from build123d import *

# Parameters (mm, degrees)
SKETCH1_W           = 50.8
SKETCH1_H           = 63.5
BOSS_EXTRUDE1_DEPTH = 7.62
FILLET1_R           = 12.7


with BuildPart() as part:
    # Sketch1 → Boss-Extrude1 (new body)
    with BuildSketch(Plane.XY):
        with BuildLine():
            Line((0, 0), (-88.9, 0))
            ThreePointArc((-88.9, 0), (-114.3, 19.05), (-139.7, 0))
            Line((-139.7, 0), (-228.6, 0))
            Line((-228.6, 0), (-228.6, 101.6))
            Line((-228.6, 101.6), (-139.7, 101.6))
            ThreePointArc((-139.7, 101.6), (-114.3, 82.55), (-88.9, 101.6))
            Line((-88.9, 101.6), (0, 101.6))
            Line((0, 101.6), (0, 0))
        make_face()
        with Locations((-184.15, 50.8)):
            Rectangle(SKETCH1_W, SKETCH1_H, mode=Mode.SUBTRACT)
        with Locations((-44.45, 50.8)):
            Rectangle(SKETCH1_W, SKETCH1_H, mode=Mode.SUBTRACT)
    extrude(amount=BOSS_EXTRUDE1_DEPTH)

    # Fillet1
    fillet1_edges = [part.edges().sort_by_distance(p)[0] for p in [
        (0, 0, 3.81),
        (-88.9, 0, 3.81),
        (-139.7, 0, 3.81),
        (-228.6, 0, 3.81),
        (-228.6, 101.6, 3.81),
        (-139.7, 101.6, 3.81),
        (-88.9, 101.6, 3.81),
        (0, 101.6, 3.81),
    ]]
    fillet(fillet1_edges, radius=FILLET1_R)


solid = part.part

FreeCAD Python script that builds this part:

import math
import FreeCAD as App
import Part
import Sketcher
from FreeCAD import Vector
Q = App.Units.Quantity


def edges_at(feature, points):
    """Names of the edges that pass closest to the given points."""
    edges = feature.Shape.Edges
    near = lambda p: min(range(len(edges)), key=lambda i: edges[i].distToShape(Part.Vertex(*p))[0])
    return sorted({f"Edge{near(p) + 1}" for p in points})

doc = App.newDocument("Part")
body = doc.addObject("PartDesign::Body", "Body")

# Sketch on XY plane
sketch1 = body.newObject("Sketcher::SketchObject", "Sketch")
sketch1.AttachmentSupport = (doc.getObject("XY_Plane"), [""])
sketch1.MapMode = "FlatFace"
sketch1.addGeometry(Part.LineSegment(Vector(-89, 0, 0), Vector(0, 0, 0)), False)
sketch1.addGeometry(Part.LineSegment(Vector(0, 0, 0), Vector(0, 102, 0)), False)
sketch1.addGeometry(Part.LineSegment(Vector(0, 102, 0), Vector(-89, 102, 0)), False)
sketch1.addGeometry(Part.ArcOfCircle(Part.Circle(Vector(-114, 109, 0), Vector(0, 0, 1), 26), math.radians(-164), math.radians(-16)), False)
sketch1.addGeometry(Part.LineSegment(Vector(-140, 102, 0), Vector(-229, 102, 0)), False)
sketch1.addGeometry(Part.LineSegment(Vector(-229, 102, 0), Vector(-229, 0, 0)), False)
sketch1.addGeometry(Part.LineSegment(Vector(-229, 0, 0), Vector(-140, 0, 0)), False)
sketch1.addGeometry(Part.ArcOfCircle(Part.Circle(Vector(-114, -7, 0), Vector(0, 0, 1), 26), math.radians(16), math.radians(164)), False)
sketch1.addGeometry(Part.LineSegment(Vector(-70, 19, 0), Vector(-70, 83, 0)), False)
sketch1.addGeometry(Part.LineSegment(Vector(-70, 83, 0), Vector(-19, 83, 0)), False)
sketch1.addGeometry(Part.LineSegment(Vector(-19, 83, 0), Vector(-19, 19, 0)), False)
sketch1.addGeometry(Part.LineSegment(Vector(-19, 19, 0), Vector(-70, 19, 0)), False)
sketch1.addGeometry(Part.LineSegment(Vector(-210, 19, 0), Vector(-210, 83, 0)), False)
sketch1.addGeometry(Part.LineSegment(Vector(-210, 83, 0), Vector(-159, 83, 0)), False)
sketch1.addGeometry(Part.LineSegment(Vector(-159, 83, 0), Vector(-159, 19, 0)), False)
sketch1.addGeometry(Part.LineSegment(Vector(-159, 19, 0), Vector(-210, 19, 0)), False)
sketch1.addConstraint(Sketcher.Constraint("Coincident", 0, 2, 1, 1))
sketch1.addConstraint(Sketcher.Constraint("Coincident", 1, 2, 2, 1))
sketch1.addConstraint(Sketcher.Constraint("Coincident", 2, 2, 3, 2))
sketch1.addConstraint(Sketcher.Constraint("Coincident", 3, 1, 4, 1))
sketch1.addConstraint(Sketcher.Constraint("Coincident", 4, 2, 5, 1))
sketch1.addConstraint(Sketcher.Constraint("Coincident", 5, 2, 6, 1))
sketch1.addConstraint(Sketcher.Constraint("Coincident", 6, 2, 7, 2))
sketch1.addConstraint(Sketcher.Constraint("Coincident", 7, 1, 0, 1))
sketch1.addConstraint(Sketcher.Constraint("Coincident", 8, 2, 9, 1))
sketch1.addConstraint(Sketcher.Constraint("Coincident", 9, 2, 10, 1))
sketch1.addConstraint(Sketcher.Constraint("Coincident", 10, 2, 11, 1))
sketch1.addConstraint(Sketcher.Constraint("Coincident", 11, 2, 8, 1))
sketch1.addConstraint(Sketcher.Constraint("Coincident", 12, 2, 13, 1))
sketch1.addConstraint(Sketcher.Constraint("Coincident", 13, 2, 14, 1))
sketch1.addConstraint(Sketcher.Constraint("Coincident", 14, 2, 15, 1))
sketch1.addConstraint(Sketcher.Constraint("Coincident", 15, 2, 12, 1))
sketch1.addConstraint(Sketcher.Constraint("Horizontal", 0))
sketch1.addConstraint(Sketcher.Constraint("Vertical", 1))
sketch1.addConstraint(Sketcher.Constraint("Horizontal", 2))
sketch1.addConstraint(Sketcher.Constraint("Horizontal", 4))
sketch1.addConstraint(Sketcher.Constraint("Vertical", 5))
sketch1.addConstraint(Sketcher.Constraint("Horizontal", 6))
sketch1.addConstraint(Sketcher.Constraint("Vertical", 8))
sketch1.addConstraint(Sketcher.Constraint("Horizontal", 9))
sketch1.addConstraint(Sketcher.Constraint("Vertical", 10))
sketch1.addConstraint(Sketcher.Constraint("Horizontal", 11))
sketch1.addConstraint(Sketcher.Constraint("Vertical", 12))
sketch1.addConstraint(Sketcher.Constraint("Horizontal", 13))
sketch1.addConstraint(Sketcher.Constraint("Vertical", 14))
sketch1.addConstraint(Sketcher.Constraint("Horizontal", 15))
sketch1.addConstraint(Sketcher.Constraint("Coincident", 0, 2, -1, 1))
sketch1.addConstraint(Sketcher.Constraint("Equal", 3, 7))
sketch1.addConstraint(Sketcher.Constraint("PointOnObject", 5, 2, -1))
sketch1.addConstraint(Sketcher.Constraint("Horizontal", 2, 2, 3, 1))
sketch1.addConstraint(Sketcher.Constraint("Horizontal", 9, 2, 12, 2))
sketch1.addConstraint(Sketcher.Constraint("Horizontal", 11, 2, 14, 2))
sketch1.addConstraint(Sketcher.Constraint("Vertical", 3, 3, 7, 3))
sketch1.addConstraint(Sketcher.Constraint("Vertical", 3, 1, 6, 2))
sketch1.addConstraint(Sketcher.Constraint("Equal", 2, 4))
sketch1.addConstraint(Sketcher.Constraint("Equal", 11, 13))
sketch1.addConstraint(Sketcher.Constraint("DistanceX", 9, 1, 9, 2, Q("2 in")))
sketch1.addConstraint(Sketcher.Constraint("DistanceY", 1, 1, 1, 2, Q("4 in")))
sketch1.addConstraint(Sketcher.Constraint("DistanceX", 0, 1, 0, 2, Q("3.5 in")))
sketch1.addConstraint(Sketcher.Constraint("DistanceY", 8, 1, 8, 2, Q("2.5 in")))
sketch1.addConstraint(Sketcher.Constraint("DistanceX", 4, 2, -1, 1, Q("9 in")))
sketch1.addConstraint(Sketcher.Constraint("DistanceX", 8, 2, -1, 1, Q("2.75 in")))
sketch1.addConstraint(Sketcher.Constraint("DistanceY", -1, 1, 8, 2, Q("3.25 in")))
sketch1.addConstraint(Sketcher.Constraint("DistanceX", 12, 2, -1, 1, Q("8.25 in")))
sketch1.addConstraint(Sketcher.Constraint("Radius", 3, Q("26.458333 mm")))
pad1 = body.newObject("PartDesign::Pad", "Pad")
pad1.Profile = sketch1
pad1.Length = Q("0.3 in")
doc.recompute()

fillet = body.newObject("PartDesign::Fillet", "Fillet")
fillet.Base = (pad1, edges_at(pad1, [
    (0, 0, 3.81),
    (-88.9, 0, 3.81),
    (-139.7, 0, 3.81),
    (-228.6, 0, 3.81),
    (-228.6, 101.6, 3.81),
    (-139.7, 101.6, 3.81),
    (-88.9, 101.6, 3.81),
    (0, 101.6, 3.81),
]))
fillet.Radius = Q("0.5 in")

doc.recompute()
